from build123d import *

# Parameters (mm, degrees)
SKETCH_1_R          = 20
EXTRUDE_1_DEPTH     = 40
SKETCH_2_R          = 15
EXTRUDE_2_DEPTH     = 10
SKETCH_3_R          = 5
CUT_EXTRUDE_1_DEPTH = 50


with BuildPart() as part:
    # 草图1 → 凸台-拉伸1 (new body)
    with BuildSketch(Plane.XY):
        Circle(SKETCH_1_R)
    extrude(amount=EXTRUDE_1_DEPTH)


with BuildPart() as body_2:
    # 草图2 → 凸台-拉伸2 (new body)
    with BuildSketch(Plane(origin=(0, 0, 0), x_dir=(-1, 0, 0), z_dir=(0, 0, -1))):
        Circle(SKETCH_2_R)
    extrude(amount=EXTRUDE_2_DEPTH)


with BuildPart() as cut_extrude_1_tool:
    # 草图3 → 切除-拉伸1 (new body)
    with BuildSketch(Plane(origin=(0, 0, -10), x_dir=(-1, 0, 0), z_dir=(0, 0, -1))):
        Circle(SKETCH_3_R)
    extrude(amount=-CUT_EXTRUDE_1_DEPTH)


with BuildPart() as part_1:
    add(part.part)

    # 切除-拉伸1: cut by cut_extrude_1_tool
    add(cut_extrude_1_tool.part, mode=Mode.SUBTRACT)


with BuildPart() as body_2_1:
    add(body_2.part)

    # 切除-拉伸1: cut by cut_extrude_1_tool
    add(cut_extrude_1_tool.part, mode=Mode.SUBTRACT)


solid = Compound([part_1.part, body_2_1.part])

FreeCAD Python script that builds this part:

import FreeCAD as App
import Part
import Sketcher

doc = App.newDocument("Part")
params = doc.addObject("Spreadsheet::Sheet", "Params")
for row, (alias, value) in enumerate([
    ("sketch1_diameter", "40 mm"),
    ("pad1_length", "40 mm"),
    ("sketch2_diameter", "30 mm"),
    ("pad2_length", "10 mm"),
    ("sketch3_diameter", "10 mm"),
    ("pad3_length", "50 mm"),
], start=1):
    params.set(f"A{row}", alias)
    params.set(f"B{row}", "=" + value)
    params.setAlias(f"B{row}", alias)

body = doc.addObject("PartDesign::Body", "Body")

sketch1 = doc.addObject("Sketcher::SketchObject", "Sketch")
body.addObject(sketch1)
sketch1.AttachmentSupport = (doc.XY_Plane, [""])
sketch1.MapMode = "FlatFace"
sketch1.addGeometry(Part.Circle(App.Vector(0, 0, 0), App.Vector(0, 0, 1), 20), False)
sketch1.addConstraint([
    Sketcher.Constraint("Coincident", 0, 3, -1, 1),
    Sketcher.Constraint("Diameter", 0, 40.0),
])
sketch1.setExpression("Constraints[1]", "Params.sketch1_diameter")
pad1 = doc.addObject("PartDesign::Pad", "Pad")
body.addObject(pad1)
pad1.Profile = sketch1
pad1.setExpression("Length", "Params.pad1_length")
body2 = doc.addObject("PartDesign::Body", "Body001")

sketch2 = doc.addObject("Sketcher::SketchObject", "Sketch001")
body2.addObject(sketch2)
sketch2.AttachmentSupport = (doc.getObject("XY_Plane001"), [""])
sketch2.MapMode = "FlatFace"
sketch2.addGeometry(Part.Circle(App.Vector(0, 0, 0), App.Vector(0, 0, 1), 15), False)
sketch2.addConstraint([
    Sketcher.Constraint("Coincident", 0, 3, -1, 1),
    Sketcher.Constraint("Diameter", 0, 30.0),
])
sketch2.setExpression("Constraints[1]", "Params.sketch2_diameter")
pad2 = doc.addObject("PartDesign::Pad", "Pad001")
body2.addObject(pad2)
pad2.Profile = sketch2
pad2.setExpression("Length", "Params.pad2_length")
pad2.Reversed = True
body3 = doc.addObject("PartDesign::Body", "Body002")

sketch3 = doc.addObject("Sketcher::SketchObject", "Sketch002")
body3.addObject(sketch3)
sketch3.AttachmentSupport = (doc.getObject("XY_Plane002"), [""])
sketch3.MapMode = "FlatFace"
sketch3.AttachmentOffset = App.Placement(App.Vector(0, 0, -10), App.Rotation())
sketch3.addGeometry(Part.Circle(App.Vector(0, 0, 0), App.Vector(0, 0, 1), 5), False)
sketch3.addConstraint([
    Sketcher.Constraint("Coincident", 0, 3, -1, 1),
    Sketcher.Constraint("Diameter", 0, 10.0),
])
sketch3.setExpression("Constraints[1]", "Params.sketch3_diameter")
pad3 = doc.addObject("PartDesign::Pad", "Pad002")
body3.addObject(pad3)
pad3.Profile = sketch3
pad3.setExpression("Length", "Params.pad3_length")
doc.recompute()

body4 = doc.addObject("PartDesign::Body", "Body003")
body4.BaseFeature = body3
boolean = doc.addObject("PartDesign::Boolean", "Boolean")
body.addObject(boolean)
boolean.Type = "Cut"
boolean.addObjects([body4])
doc.recompute()

boolean2 = doc.addObject("PartDesign::Boolean", "Boolean001")
body2.addObject(boolean2)
boolean2.Type = "Cut"
boolean2.addObjects([body3])

doc.recompute()
